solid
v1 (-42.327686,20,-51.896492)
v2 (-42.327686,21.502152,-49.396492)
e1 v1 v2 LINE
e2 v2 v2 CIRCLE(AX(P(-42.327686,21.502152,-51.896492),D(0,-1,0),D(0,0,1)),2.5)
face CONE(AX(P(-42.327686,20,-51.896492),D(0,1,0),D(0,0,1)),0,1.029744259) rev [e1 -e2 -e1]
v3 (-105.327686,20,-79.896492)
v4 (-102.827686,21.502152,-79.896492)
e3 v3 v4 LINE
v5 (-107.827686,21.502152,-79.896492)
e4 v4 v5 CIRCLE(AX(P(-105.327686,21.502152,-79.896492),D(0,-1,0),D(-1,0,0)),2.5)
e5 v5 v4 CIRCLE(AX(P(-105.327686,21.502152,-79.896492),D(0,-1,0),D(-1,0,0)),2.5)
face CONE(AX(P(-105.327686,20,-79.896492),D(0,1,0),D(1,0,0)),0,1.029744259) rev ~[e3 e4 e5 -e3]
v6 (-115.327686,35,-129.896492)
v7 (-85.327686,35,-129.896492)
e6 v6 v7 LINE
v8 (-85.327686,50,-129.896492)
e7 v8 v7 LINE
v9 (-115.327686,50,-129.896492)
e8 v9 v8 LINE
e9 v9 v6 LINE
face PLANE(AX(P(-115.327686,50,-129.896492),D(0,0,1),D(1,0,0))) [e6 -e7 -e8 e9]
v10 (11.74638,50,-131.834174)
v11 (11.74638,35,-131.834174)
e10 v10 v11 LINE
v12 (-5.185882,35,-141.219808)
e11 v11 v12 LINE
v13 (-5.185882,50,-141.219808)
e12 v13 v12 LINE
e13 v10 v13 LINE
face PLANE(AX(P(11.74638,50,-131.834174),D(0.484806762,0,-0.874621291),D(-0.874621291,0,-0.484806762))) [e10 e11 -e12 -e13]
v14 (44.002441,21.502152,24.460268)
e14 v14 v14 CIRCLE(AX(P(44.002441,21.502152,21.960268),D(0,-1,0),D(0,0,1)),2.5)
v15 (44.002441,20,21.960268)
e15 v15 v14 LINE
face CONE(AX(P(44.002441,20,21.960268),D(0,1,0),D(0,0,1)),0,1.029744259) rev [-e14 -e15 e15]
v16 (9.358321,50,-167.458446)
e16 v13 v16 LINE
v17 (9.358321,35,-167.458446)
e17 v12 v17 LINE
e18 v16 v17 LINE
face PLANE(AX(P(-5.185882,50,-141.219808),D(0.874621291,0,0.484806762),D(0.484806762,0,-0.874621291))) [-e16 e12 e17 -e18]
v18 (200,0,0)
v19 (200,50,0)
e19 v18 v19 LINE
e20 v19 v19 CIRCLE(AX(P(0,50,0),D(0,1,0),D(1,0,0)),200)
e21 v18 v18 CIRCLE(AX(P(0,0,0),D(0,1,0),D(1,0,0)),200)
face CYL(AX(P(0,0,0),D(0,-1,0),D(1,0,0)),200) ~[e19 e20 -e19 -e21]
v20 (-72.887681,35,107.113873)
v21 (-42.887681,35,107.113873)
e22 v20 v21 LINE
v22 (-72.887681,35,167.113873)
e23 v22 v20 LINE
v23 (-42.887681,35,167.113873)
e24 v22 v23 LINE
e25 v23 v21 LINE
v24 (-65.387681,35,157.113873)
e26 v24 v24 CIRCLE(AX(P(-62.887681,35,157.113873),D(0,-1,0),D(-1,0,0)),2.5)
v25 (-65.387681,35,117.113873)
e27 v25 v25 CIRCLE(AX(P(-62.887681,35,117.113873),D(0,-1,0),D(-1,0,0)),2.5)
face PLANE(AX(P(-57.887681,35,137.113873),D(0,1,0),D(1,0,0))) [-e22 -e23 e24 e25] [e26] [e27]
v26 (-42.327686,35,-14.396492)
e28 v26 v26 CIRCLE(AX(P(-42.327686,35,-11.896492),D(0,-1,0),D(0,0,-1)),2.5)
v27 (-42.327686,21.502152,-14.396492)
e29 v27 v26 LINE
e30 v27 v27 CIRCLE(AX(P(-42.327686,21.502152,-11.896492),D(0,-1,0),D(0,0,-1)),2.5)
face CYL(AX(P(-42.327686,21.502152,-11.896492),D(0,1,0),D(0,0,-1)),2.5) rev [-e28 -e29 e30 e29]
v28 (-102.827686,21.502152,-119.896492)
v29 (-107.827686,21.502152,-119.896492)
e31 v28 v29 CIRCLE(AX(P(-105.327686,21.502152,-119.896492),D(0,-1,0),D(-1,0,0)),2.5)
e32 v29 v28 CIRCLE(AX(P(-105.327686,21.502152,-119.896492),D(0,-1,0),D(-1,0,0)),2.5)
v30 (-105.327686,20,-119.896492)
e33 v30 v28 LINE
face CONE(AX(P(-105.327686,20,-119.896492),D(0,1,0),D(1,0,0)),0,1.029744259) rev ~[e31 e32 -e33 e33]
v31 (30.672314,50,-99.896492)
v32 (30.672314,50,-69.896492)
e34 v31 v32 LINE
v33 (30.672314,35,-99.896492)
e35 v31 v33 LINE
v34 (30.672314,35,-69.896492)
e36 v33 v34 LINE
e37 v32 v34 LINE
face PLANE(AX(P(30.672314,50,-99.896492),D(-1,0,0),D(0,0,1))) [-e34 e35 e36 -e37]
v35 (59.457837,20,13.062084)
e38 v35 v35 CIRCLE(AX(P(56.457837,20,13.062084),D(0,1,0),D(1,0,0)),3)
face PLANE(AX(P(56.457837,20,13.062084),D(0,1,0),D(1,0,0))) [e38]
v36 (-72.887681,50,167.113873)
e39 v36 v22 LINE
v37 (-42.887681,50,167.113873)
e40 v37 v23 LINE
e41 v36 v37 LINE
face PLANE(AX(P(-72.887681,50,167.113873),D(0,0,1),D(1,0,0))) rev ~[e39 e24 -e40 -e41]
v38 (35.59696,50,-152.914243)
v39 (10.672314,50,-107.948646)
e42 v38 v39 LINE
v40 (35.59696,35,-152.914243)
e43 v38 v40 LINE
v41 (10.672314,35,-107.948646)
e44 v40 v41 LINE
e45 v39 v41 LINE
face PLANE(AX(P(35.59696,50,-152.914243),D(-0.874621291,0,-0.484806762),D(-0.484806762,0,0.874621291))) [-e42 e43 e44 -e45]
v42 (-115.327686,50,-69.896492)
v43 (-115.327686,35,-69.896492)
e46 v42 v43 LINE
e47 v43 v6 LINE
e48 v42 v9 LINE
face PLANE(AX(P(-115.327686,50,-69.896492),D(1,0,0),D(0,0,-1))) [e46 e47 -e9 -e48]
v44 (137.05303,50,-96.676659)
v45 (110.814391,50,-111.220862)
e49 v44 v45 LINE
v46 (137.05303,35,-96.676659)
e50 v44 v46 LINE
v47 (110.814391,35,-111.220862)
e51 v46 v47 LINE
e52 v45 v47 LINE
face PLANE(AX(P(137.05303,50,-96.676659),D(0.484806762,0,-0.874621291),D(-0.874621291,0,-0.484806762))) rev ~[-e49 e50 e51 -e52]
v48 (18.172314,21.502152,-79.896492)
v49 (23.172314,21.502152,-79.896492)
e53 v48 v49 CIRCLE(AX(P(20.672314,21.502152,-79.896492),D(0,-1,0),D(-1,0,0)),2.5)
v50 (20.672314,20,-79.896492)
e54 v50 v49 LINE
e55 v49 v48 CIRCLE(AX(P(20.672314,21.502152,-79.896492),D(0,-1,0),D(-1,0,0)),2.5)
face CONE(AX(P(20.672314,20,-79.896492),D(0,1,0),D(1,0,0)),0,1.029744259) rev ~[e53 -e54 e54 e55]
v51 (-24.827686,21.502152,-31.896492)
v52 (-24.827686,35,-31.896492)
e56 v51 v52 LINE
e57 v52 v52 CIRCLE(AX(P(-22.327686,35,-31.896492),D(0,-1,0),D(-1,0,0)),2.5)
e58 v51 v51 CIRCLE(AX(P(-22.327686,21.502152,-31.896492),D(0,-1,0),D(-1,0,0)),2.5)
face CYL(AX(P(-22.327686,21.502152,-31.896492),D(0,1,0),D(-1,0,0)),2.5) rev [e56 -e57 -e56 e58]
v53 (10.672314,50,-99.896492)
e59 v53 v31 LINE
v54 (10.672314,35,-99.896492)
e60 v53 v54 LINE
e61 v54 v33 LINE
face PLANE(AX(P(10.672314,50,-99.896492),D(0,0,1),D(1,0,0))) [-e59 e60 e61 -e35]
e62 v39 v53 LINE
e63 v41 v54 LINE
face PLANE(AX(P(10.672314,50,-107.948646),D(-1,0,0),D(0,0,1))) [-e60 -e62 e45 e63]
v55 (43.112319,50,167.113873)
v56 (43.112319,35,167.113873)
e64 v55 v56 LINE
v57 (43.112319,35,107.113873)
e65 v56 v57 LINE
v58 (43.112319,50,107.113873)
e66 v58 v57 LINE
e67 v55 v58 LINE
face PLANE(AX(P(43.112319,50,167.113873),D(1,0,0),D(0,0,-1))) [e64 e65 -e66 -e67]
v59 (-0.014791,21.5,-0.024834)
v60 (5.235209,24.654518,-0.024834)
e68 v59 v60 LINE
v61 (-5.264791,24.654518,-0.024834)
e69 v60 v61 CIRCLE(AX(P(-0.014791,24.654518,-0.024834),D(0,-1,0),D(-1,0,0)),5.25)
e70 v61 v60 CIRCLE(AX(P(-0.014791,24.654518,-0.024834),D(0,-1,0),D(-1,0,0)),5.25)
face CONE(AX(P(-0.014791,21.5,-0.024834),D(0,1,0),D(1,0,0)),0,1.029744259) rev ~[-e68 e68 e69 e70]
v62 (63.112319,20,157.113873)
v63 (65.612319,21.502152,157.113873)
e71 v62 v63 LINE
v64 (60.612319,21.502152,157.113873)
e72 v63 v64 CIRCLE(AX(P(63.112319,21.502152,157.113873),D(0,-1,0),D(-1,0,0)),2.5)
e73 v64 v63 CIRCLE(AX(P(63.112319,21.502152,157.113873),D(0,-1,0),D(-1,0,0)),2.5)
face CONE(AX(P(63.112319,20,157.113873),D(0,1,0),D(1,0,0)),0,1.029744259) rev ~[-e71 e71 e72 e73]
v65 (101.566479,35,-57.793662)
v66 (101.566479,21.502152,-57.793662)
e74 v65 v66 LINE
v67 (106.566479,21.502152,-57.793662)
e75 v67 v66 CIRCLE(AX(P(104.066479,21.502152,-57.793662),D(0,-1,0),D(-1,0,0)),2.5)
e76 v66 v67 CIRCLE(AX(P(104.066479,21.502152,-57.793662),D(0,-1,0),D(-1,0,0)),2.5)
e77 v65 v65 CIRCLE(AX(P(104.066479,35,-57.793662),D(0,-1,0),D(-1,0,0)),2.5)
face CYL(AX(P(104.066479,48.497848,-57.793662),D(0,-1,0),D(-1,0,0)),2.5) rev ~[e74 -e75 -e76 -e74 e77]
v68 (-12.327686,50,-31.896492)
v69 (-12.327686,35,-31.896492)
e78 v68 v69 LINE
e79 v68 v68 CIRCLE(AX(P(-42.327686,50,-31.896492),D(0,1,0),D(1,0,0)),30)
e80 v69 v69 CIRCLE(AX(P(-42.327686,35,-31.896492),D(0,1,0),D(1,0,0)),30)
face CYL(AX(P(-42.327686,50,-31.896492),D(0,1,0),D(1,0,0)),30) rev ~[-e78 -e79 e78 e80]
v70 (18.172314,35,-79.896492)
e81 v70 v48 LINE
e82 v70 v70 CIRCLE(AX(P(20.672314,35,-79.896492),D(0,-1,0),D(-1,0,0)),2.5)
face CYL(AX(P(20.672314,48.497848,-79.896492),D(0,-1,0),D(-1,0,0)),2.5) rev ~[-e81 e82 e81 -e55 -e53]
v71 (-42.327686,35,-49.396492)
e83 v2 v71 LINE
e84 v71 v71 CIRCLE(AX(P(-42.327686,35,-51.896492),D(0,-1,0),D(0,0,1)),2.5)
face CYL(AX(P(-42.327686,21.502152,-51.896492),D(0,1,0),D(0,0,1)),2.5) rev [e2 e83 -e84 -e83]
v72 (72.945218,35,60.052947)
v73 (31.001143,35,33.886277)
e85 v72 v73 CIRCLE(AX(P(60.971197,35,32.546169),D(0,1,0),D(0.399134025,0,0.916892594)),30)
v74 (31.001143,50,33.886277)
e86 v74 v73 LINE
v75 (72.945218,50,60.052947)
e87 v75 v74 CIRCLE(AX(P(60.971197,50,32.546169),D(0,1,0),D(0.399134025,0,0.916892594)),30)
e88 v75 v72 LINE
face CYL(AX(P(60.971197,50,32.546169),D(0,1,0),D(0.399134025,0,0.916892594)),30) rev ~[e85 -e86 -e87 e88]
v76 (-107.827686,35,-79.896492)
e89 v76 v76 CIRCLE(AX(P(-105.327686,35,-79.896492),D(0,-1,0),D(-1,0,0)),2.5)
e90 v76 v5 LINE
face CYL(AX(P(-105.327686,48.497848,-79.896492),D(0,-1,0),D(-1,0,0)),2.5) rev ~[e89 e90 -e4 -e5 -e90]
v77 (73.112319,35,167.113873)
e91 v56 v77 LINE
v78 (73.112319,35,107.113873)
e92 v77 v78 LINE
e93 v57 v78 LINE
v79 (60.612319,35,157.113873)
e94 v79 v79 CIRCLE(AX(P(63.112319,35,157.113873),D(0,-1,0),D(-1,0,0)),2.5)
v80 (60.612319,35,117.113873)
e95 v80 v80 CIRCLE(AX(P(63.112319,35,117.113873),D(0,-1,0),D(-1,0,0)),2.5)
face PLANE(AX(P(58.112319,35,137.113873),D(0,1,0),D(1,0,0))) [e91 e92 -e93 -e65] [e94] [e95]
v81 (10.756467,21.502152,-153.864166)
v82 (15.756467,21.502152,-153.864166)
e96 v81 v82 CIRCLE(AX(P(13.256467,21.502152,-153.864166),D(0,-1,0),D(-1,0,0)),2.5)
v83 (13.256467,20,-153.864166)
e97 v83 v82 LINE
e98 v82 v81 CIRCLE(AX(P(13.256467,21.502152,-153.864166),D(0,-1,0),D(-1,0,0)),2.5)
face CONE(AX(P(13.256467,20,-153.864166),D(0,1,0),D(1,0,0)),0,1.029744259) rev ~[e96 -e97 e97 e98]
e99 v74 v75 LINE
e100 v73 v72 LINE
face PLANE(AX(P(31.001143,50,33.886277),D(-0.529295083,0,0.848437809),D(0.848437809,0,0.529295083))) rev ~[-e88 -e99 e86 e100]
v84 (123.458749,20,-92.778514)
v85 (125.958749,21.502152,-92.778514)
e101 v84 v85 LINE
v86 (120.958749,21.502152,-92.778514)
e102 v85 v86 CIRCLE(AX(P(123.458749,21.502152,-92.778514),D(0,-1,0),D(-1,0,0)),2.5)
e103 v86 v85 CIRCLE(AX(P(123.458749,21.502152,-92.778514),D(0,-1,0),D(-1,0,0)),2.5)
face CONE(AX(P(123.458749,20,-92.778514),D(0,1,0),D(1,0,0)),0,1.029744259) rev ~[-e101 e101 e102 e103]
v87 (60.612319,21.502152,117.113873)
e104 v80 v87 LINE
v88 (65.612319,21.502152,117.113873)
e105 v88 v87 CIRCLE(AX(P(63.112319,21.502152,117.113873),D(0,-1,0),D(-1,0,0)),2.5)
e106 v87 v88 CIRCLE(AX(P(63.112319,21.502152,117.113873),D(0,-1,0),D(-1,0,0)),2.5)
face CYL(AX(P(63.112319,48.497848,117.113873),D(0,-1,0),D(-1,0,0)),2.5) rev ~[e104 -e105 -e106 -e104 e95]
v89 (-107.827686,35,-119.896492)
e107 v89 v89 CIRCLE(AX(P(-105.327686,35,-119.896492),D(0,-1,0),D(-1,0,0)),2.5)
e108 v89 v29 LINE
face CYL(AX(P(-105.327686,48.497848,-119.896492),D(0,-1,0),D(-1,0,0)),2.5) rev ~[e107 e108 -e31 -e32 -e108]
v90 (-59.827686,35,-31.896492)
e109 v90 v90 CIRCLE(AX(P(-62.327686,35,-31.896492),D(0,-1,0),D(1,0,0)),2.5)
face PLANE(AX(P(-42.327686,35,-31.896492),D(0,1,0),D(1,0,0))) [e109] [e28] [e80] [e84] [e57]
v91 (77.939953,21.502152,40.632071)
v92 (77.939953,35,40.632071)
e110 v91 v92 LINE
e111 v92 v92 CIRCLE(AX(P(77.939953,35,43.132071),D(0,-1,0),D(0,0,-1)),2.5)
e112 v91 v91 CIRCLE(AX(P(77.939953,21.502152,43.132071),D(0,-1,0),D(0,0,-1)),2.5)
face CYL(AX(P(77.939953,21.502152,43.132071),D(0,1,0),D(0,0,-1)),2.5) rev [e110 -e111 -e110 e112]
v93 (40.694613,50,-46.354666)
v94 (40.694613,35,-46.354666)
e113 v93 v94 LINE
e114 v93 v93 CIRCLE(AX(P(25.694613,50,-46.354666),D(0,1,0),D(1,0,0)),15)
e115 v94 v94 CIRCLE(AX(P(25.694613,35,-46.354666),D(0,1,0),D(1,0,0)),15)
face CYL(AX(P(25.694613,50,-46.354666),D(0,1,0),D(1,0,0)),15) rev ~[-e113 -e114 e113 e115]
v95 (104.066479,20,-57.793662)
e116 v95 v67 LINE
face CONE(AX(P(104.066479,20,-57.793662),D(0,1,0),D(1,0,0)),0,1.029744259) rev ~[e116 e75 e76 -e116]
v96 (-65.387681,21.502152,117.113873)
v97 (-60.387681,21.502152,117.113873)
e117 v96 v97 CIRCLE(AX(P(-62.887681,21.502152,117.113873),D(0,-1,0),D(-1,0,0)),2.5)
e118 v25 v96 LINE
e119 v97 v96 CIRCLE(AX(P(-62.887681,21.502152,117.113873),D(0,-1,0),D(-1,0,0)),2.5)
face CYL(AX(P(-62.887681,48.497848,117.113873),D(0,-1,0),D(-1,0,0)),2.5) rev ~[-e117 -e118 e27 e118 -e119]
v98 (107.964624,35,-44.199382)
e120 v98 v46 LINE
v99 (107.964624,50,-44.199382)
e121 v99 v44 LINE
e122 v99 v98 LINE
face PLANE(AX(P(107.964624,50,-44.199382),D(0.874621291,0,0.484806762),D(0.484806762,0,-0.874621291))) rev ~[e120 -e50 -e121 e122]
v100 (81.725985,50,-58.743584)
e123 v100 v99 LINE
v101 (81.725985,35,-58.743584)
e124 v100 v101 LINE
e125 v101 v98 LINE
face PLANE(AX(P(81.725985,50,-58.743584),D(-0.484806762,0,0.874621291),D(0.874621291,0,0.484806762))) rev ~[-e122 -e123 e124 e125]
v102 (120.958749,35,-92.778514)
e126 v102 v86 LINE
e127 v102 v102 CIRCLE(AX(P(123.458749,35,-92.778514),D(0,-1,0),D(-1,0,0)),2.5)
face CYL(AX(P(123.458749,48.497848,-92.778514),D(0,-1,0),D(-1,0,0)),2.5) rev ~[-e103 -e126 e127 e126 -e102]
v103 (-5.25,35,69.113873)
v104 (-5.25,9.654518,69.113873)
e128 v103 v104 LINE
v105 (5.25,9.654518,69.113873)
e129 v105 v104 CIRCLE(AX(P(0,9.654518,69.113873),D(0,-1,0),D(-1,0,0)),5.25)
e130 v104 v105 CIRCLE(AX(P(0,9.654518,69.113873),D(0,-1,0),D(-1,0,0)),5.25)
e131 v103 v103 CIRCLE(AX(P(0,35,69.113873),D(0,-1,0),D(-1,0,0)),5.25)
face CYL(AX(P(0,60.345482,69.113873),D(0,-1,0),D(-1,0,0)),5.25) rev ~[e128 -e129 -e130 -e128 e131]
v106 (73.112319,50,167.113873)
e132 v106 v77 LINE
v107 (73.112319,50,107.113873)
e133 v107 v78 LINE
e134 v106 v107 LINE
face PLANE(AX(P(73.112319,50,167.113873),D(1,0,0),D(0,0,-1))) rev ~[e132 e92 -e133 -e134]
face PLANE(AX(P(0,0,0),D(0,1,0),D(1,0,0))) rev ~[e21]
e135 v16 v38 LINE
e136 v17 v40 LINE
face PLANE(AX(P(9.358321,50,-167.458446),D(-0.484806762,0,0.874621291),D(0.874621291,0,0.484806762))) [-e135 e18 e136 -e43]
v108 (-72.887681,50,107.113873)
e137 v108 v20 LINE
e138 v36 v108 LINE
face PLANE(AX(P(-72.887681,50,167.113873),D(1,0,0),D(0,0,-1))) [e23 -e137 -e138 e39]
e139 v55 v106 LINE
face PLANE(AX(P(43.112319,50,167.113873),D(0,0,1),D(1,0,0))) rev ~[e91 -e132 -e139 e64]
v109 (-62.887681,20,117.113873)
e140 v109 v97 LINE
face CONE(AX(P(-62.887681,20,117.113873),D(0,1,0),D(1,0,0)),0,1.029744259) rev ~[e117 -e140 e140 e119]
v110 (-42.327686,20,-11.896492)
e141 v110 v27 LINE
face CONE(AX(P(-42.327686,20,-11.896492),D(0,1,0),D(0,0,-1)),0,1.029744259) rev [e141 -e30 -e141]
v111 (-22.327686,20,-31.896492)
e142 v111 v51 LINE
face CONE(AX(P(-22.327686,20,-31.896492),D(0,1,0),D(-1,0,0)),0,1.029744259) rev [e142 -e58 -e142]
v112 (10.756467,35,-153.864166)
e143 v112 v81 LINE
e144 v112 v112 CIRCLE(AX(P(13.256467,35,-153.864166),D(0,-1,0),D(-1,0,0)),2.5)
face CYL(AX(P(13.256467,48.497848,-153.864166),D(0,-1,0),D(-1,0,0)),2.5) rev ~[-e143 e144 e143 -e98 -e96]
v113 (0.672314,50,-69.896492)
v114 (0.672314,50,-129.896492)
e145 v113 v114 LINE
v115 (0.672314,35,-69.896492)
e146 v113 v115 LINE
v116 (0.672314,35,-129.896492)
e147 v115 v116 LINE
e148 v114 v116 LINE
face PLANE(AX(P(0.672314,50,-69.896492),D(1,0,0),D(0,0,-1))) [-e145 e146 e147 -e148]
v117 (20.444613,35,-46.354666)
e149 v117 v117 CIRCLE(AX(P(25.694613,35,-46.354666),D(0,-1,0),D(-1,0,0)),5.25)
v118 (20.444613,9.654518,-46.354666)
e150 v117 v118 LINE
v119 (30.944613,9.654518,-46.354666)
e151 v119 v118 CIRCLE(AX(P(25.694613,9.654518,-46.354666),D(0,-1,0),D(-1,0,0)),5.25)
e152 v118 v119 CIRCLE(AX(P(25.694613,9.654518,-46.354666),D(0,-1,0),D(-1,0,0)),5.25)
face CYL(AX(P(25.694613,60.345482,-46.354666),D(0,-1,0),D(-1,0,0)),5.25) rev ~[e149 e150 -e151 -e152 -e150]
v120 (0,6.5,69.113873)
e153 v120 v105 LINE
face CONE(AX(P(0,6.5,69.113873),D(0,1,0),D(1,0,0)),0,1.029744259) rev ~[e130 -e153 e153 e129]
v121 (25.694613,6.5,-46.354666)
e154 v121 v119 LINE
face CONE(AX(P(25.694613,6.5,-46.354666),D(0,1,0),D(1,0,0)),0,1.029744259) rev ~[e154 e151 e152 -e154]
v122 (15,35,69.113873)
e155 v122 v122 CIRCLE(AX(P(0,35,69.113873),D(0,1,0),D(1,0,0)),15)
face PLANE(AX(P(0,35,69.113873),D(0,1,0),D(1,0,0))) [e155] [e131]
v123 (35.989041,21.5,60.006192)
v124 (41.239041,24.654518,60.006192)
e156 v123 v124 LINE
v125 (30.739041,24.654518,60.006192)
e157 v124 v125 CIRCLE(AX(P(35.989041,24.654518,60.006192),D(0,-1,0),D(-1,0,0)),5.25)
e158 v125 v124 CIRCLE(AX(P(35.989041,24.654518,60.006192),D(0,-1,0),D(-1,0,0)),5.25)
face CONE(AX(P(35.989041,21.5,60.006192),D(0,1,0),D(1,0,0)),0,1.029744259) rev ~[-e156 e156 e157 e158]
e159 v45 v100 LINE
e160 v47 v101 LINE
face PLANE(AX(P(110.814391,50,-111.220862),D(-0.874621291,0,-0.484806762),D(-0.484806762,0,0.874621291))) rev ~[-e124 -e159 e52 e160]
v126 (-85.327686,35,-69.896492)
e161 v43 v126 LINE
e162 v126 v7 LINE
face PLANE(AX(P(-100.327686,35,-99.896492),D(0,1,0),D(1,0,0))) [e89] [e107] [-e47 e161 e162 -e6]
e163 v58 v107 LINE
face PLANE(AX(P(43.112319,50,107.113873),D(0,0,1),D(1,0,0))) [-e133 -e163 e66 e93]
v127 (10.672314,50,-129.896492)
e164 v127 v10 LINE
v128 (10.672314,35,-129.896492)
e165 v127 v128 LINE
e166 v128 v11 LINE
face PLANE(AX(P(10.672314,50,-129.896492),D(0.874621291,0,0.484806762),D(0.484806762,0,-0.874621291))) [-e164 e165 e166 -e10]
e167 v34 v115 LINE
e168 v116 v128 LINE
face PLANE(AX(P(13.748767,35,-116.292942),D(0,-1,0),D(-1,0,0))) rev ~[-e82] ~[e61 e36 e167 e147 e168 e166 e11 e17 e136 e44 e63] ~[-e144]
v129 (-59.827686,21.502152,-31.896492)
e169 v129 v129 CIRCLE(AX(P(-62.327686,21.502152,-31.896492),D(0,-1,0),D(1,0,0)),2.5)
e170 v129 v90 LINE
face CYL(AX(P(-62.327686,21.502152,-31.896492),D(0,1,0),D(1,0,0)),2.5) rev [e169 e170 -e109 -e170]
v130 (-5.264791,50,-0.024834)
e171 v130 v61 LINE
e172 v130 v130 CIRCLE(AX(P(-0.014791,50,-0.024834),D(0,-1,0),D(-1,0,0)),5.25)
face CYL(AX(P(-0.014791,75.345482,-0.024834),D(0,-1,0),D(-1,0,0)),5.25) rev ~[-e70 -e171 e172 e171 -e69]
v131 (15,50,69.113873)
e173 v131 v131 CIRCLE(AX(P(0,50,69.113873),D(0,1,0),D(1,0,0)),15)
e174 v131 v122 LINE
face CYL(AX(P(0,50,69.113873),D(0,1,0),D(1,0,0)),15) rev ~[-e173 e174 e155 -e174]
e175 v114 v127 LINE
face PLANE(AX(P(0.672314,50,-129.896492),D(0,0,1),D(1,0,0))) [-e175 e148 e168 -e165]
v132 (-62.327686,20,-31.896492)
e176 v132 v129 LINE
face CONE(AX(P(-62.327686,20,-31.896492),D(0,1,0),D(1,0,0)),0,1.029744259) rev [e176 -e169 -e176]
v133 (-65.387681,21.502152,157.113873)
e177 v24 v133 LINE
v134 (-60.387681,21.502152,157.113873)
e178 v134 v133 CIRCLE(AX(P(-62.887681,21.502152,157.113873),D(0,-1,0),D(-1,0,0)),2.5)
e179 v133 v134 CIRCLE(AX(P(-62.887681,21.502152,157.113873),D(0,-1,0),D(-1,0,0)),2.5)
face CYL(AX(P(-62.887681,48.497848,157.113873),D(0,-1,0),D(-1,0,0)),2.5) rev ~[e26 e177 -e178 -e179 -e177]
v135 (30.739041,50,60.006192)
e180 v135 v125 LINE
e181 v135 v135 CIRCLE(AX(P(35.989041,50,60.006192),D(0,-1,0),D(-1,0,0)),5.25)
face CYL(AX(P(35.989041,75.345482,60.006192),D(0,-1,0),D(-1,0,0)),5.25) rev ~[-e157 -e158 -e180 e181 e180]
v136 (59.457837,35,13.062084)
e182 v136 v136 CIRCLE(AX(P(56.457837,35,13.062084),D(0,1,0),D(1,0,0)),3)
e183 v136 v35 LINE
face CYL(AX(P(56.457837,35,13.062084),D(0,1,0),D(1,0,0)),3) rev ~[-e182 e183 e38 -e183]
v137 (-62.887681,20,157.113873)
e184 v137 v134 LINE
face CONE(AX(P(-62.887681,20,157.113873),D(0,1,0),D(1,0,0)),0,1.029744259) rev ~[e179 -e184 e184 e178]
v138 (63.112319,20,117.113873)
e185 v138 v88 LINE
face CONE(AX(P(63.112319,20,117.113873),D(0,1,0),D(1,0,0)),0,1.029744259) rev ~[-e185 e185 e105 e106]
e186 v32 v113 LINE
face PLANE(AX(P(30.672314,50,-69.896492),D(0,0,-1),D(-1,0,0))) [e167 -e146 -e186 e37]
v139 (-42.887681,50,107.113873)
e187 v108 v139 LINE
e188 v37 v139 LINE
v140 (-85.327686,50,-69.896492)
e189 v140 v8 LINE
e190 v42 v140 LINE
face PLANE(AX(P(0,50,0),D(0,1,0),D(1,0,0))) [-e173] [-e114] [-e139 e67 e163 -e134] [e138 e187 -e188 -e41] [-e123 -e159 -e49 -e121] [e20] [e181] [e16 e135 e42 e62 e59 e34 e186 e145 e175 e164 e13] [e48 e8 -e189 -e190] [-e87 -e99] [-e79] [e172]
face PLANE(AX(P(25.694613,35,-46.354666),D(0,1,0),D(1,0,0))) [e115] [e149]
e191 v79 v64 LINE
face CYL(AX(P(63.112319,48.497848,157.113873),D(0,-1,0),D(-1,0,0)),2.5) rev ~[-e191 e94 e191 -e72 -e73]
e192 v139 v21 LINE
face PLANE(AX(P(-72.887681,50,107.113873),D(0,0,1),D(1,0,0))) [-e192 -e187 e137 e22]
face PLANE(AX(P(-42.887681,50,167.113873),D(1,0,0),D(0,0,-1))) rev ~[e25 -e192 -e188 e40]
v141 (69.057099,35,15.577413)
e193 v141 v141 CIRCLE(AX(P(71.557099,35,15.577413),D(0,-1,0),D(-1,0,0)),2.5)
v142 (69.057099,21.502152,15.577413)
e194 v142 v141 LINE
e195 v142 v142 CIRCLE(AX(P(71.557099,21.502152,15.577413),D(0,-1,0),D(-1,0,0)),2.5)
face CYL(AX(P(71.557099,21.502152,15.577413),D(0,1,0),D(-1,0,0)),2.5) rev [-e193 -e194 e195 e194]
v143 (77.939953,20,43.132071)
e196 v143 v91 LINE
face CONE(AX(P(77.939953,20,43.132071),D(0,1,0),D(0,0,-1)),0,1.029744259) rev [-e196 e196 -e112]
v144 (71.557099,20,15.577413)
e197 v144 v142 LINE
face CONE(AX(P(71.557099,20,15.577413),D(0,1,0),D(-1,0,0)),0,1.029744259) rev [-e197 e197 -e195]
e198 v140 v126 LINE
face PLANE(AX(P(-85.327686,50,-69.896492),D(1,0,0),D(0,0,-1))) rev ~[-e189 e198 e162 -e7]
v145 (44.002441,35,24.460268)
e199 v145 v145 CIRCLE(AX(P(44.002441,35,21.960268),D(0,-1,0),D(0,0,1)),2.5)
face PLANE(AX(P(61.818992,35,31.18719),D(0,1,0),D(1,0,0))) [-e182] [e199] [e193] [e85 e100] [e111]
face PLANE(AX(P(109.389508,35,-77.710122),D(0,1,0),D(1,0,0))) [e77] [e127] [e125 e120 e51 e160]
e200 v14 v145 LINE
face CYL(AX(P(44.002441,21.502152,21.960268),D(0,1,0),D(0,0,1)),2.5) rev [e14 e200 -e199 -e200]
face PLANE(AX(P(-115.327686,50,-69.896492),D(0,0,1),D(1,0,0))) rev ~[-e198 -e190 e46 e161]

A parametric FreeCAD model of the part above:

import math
import FreeCAD as App
import Part
import Sketcher

V = App.Vector
Q = App.Units.Quantity

doc = App.newDocument("Part")
params = doc.addObject("Spreadsheet::Sheet", "Params")
for row, (alias, value) in enumerate([
    ("sketch1_diameter", "400 mm"),
    ("pad1_length", "50 mm"),
    ("sketch2_diameter", "30 mm"),
    ("sketch2_diameter2", "60 mm"),
    ("pocket1_length", "15 mm"),
    ("sketch3_diameter", "10.5 mm"),
    ("hole_diameter", "10.5 mm"),
    ("hole_depth", "25.345482 mm"),
    ("sketch4_width", "15 mm"),
    ("sketch4_height", "2.5 mm"),
    ("groove_angle", "360 deg"),
    ("sketch5_width", "15 mm"),
    ("sketch5_height", "2.5 mm"),
    ("groove2_angle", "360 deg"),
    ("sketch6_diameter", "10.5 mm"),
    ("hole2_diameter", "10.5 mm"),
    ("hole2_depth", "25.345482 mm"),
    ("sketch7_width", "30 mm"),
    ("sketch7_width2", "10 mm"),
    ("sketch7_height", "60 mm"),
    ("sketch7_length", "60 mm"),
    ("sketch7_length2", "30 mm"),
    ("pocket2_length", "15 mm"),
    ("sketch8_diameter", "5 mm"),
    ("hole3_diameter", "5 mm"),
    ("hole3_depth", "13.497848 mm"),
    ("sketch9_diameter", "6 mm"),
    ("pocket3_length", "15 mm"),
    ("sketch10_diameter", "10.5 mm"),
    ("hole4_diameter", "10.5 mm"),
    ("hole4_depth", "25.345482 mm"),
], start=1):
    params.set(f"A{row}", alias)
    params.set(f"B{row}", "=" + value)
    params.setAlias(f"B{row}", alias)

body = doc.addObject("PartDesign::Body", "Body")

sketch1 = body.newObject("Sketcher::SketchObject", "Sketch")
sketch1.AttachmentSupport = (doc.getObject("XZ_Plane"), [""])
sketch1.MapMode = "FlatFace"
sketch1.addGeometry(Part.Circle(V(0, 0, 0), V(0, 0, 1), 200), False)
sketch1.addConstraint([
    Sketcher.Constraint("Coincident", 0, 3, -1, 1),
    Sketcher.Constraint("Diameter", 0, 400.0),
])
sketch1.setExpression("Constraints[1]", "Params.sketch1_diameter")
pad1 = body.newObject("PartDesign::Pad", "Pad")
pad1.Profile = sketch1
pad1.setExpression("Length", "Params.pad1_length")
pad1.Reversed = True

sketch2 = body.newObject("Sketcher::SketchObject", "Sketch001")
sketch2.AttachmentSupport = (doc.getObject("XZ_Plane"), [""])
sketch2.MapMode = "FlatFace"
sketch2.AttachmentOffset = App.Placement(V(0, 0, -50), App.Rotation())
sketch2.addGeometry([
    Part.Circle(V(0, 69, 0), V(0, 0, 1), 15),
    Part.Circle(V(26, -46, 0), V(0, 0, 1), 15),
    Part.Circle(V(-42, -32, 0), V(0, 0, 1), 30),
    Part.LineSegment(V(31, 34, 0), V(73, 60, 0)),
    Part.ArcOfCircle(Part.Circle(V(61, 33, 0), V(0, 0, 1), 30), math.radians(177), math.radians(426)),
], False)
sketch2.addConstraint([
    Sketcher.Constraint("Coincident", 3, 1, 4, 1),
    Sketcher.Constraint("Coincident", 4, 2, 3, 2),
    Sketcher.Constraint("Equal", 0, 1),
    Sketcher.Constraint("Equal", 2, 4),
    Sketcher.Constraint("PointOnObject", 0, 3, -2),
    Sketcher.Constraint("Diameter", 0, 30.0),
    Sketcher.Constraint("Diameter", 2, 60.0),
    Sketcher.Constraint("DistanceX", 2, 3, 1, 3, 68.022299),
    Sketcher.Constraint("Distance", 3, 49.436828),
    Sketcher.Constraint("DistanceY", -1, 1, 4, 3, 32.546169),
    Sketcher.Constraint("DistanceY", 1, 3, 0, 3, 115.468539),
    Sketcher.Constraint("DistanceY", 2, 3, 4, 3, 64.442662),
    Sketcher.Constraint("DistanceX", 1, 3, 3, 1, 5.30653),
    Sketcher.Constraint("DistanceY", 2, 3, 3, 1, 65.782769),
    Sketcher.Constraint("DistanceY", -1, 1, 0, 3, 69.113873),
    Sketcher.Constraint("DistanceX", -1, 1, 1, 3, 25.694613),
])
sketch2.setExpression("Constraints[5]", "Params.sketch2_diameter")
sketch2.setExpression("Constraints[6]", "Params.sketch2_diameter2")
pocket1 = body.newObject("PartDesign::Pocket", "Pocket")
pocket1.Profile = sketch2
pocket1.setExpression("Length", "Params.pocket1_length")
pocket1.Reversed = True

sketch3 = body.newObject("Sketcher::SketchObject", "Sketch002")
sketch3.AttachmentSupport = (doc.getObject("XZ_Plane"), [""])
sketch3.MapMode = "FlatFace"
sketch3.AttachmentOffset = App.Placement(V(0, 0, -35), App.Rotation())
sketch3.addGeometry([
    Part.Circle(V(26, -46, 0), V(0, 0, 1), 5),
    Part.Circle(V(0, 69, 0), V(0, 0, 1), 5),
], False)
sketch3.addConstraint([
    Sketcher.Constraint("Equal", 0, 1),
    Sketcher.Constraint("PointOnObject", 1, 3, -2),
    Sketcher.Constraint("Diameter", 0, 10.5),
    Sketcher.Constraint("DistanceY", 0, 3, 1, 3, 115.468539),
    Sketcher.Constraint("DistanceX", -1, 1, 0, 3, 25.694613),
    Sketcher.Constraint("DistanceY", 0, 3, -1, 1, 46.354666),
])
sketch3.setExpression("Constraints[2]", "Params.sketch3_diameter")
doc.recompute()
hole = body.newObject("PartDesign::Hole", "Hole")
hole.Profile = sketch3
hole.ThreadType = "None"
hole.setExpression("Diameter", "Params.hole_diameter")
hole.DepthType = "Dimension"
hole.setExpression("Depth", "Params.hole_depth")
hole.DrillPoint = "Angled"
hole.DrillPointAngle = 118
hole.Reversed = True

sketch4 = body.newObject("Sketcher::SketchObject", "Sketch003")
sketch4.AttachmentSupport = (doc.getObject("YZ_Plane"), [""])
sketch4.MapMode = "FlatFace"
sketch4.AttachmentOffset = App.Placement(V(0, 0, 44.002441), App.Rotation())
sketch4.addGeometry([
    Part.LineSegment(V(20, 22, 0), V(35, 22, 0)),
    Part.LineSegment(V(35, 22, 0), V(35, 24.5, 0)),
    Part.LineSegment(V(35, 24.5, 0), V(21.5, 24.5, 0)),
    Part.LineSegment(V(21.5, 24.5, 0), V(20, 22, 0)),
], False)
sketch4.addGeometry(Part.LineSegment(V(35, 22, 0), V(20, 22, 0)), True)
sketch4.addConstraint([
    Sketcher.Constraint("Coincident", 0, 2, 1, 1),
    Sketcher.Constraint("Coincident", 1, 2, 2, 1),
    Sketcher.Constraint("Coincident", 2, 2, 3, 1),
    Sketcher.Constraint("Coincident", 3, 2, 0, 1),
    Sketcher.Constraint("Horizontal", 0),
    Sketcher.Constraint("Vertical", 1),
    Sketcher.Constraint("Horizontal", 2),
    Sketcher.Constraint("Horizontal", 4),
    Sketcher.Constraint("Coincident", 4, 1, 0, 2),
    Sketcher.Constraint("Equal", 0, 4),
    Sketcher.Constraint("DistanceX", 0, 1, 0, 2, 15.0),
    Sketcher.Constraint("Angle", 3, Q("-121 deg")),
    Sketcher.Constraint("DistanceY", 1, 1, 1, 2, 2.5),
    Sketcher.Constraint("DistanceX", -1, 1, 0, 2, 35.0),
    Sketcher.Constraint("DistanceY", -1, 1, 0, 2, 21.960268),
])
sketch4.setExpression("Constraints[10]", "Params.sketch4_width")
sketch4.setExpression("Constraints[12]", "Params.sketch4_height")
groove = body.newObject("PartDesign::Groove", "Groove")
groove.Profile = sketch4
groove.ReferenceAxis = (sketch4, ["Axis0"])
groove.setExpression("Angle", "Params.groove_angle")
doc.recompute()

datumline = body.newObject("PartDesign::Line", "DatumLine")
datumline.Placement = App.Placement(V(60.971197, 0, 32.546169), App.Rotation(V(0, 0, 1), V(0, -1, 0)))
polarpattern = body.newObject("PartDesign::PolarPattern", "PolarPattern")
polarpattern.Originals = [groove]
polarpattern.Axis = (datumline, [""])
polarpattern.Angle = 180
polarpattern.Occurrences = 3
body.Tip = polarpattern

sketch5 = body.newObject("Sketcher::SketchObject", "Sketch004")
sketch5.AttachmentSupport = (doc.getObject("YZ_Plane"), [""])
sketch5.MapMode = "FlatFace"
sketch5.AttachmentOffset = App.Placement(V(0, 0, -42.327686), App.Rotation())
sketch5.addGeometry([
    Part.LineSegment(V(20, -51.9, 0), V(35, -51.9, 0)),
    Part.LineSegment(V(35, -51.9, 0), V(35, -49.4, 0)),
    Part.LineSegment(V(35, -49.4, 0), V(21.5, -49.4, 0)),
    Part.LineSegment(V(21.5, -49.4, 0), V(20, -51.9, 0)),
], False)
sketch5.addGeometry(Part.LineSegment(V(35, -51.9, 0), V(20, -51.9, 0)), True)
sketch5.addConstraint([
    Sketcher.Constraint("Coincident", 0, 2, 1, 1),
    Sketcher.Constraint("Coincident", 1, 2, 2, 1),
    Sketcher.Constraint("Coincident", 2, 2, 3, 1),
    Sketcher.Constraint("Coincident", 3, 2, 0, 1),
    Sketcher.Constraint("Horizontal", 0),
    Sketcher.Constraint("Vertical", 1),
    Sketcher.Constraint("Horizontal", 2),
    Sketcher.Constraint("Horizontal", 4),
    Sketcher.Constraint("Coincident", 4, 1, 0, 2),
    Sketcher.Constraint("Equal", 0, 4),
    Sketcher.Constraint("DistanceX", 0, 1, 0, 2, 15.0),
    Sketcher.Constraint("Angle", 3, Q("-121 deg")),
    Sketcher.Constraint("DistanceY", 1, 1, 1, 2, 2.5),
    Sketcher.Constraint("DistanceX", -1, 1, 0, 2, 35.0),
    Sketcher.Constraint("DistanceY", 0, 2, -1, 1, 51.896492),
])
sketch5.setExpression("Constraints[10]", "Params.sketch5_width")
sketch5.setExpression("Constraints[12]", "Params.sketch5_height")
groove2 = body.newObject("PartDesign::Groove", "Groove001")
groove2.Profile = sketch5
groove2.ReferenceAxis = (sketch5, ["Axis0"])
groove2.setExpression("Angle", "Params.groove2_angle")
doc.recompute()

datumline2 = body.newObject("PartDesign::Line", "DatumLine001")
datumline2.Placement = App.Placement(V(-42.327686, 0, -31.896492), App.Rotation(V(0, 0, 1), V(0, 1, 0)))
polarpattern2 = body.newObject("PartDesign::PolarPattern", "PolarPattern001")
polarpattern2.Originals = [groove2]
polarpattern2.Axis = (datumline2, [""])
polarpattern2.Angle = 360
polarpattern2.Occurrences = 4
body.Tip = polarpattern2

sketch6 = body.newObject("Sketcher::SketchObject", "Sketch005")
sketch6.AttachmentSupport = (doc.getObject("XZ_Plane"), [""])
sketch6.MapMode = "FlatFace"
sketch6.AttachmentOffset = App.Placement(V(0, 0, -50), App.Rotation())
sketch6.addGeometry(Part.Circle(V(0, 0, 0), V(0, 0, 1), 5), False)
sketch6.addConstraint([
    Sketcher.Constraint("Diameter", 0, 10.5),
    Sketcher.Constraint("DistanceX", 0, 3, -1, 1, 0.014791),
    Sketcher.Constraint("DistanceY", 0, 3, -1, 1, 0.024834),
])
sketch6.setExpression("Constraints[0]", "Params.sketch6_diameter")
doc.recompute()
hole2 = body.newObject("PartDesign::Hole", "Hole001")
hole2.Profile = sketch6
hole2.ThreadType = "None"
hole2.setExpression("Diameter", "Params.hole2_diameter")
hole2.DepthType = "Dimension"
hole2.setExpression("Depth", "Params.hole2_depth")
hole2.DrillPoint = "Angled"
hole2.DrillPointAngle = 118
hole2.Reversed = True

sketch7 = body.newObject("Sketcher::SketchObject", "Sketch006")
sketch7.AttachmentSupport = (doc.getObject("XZ_Plane"), [""])
sketch7.MapMode = "FlatFace"
sketch7.AttachmentOffset = App.Placement(V(0, 0, -50), App.Rotation())
sketch7.addGeometry([
    Part.LineSegment(V(43.1, 107.1, 0), V(43.1, 167.1, 0)),
    Part.LineSegment(V(43.1, 167.1, 0), V(73.1, 167.1, 0)),
    Part.LineSegment(V(73.1, 167.1, 0), V(73.1, 107.1, 0)),
    Part.LineSegment(V(73.1, 107.1, 0), V(43.1, 107.1, 0)),
    Part.LineSegment(V(110.8, -111.2, 0), V(81.7, -58.7, 0)),
    Part.LineSegment(V(81.7, -58.7, 0), V(108, -44.2, 0)),
    Part.LineSegment(V(108, -44.2, 0), V(137.1, -96.7, 0)),
    Part.LineSegment(V(137.1, -96.7, 0), V(110.8, -111.2, 0)),
    Part.LineSegment(V(-115.3, -129.9, 0), V(-115.3, -69.9, 0)),
    Part.LineSegment(V(-115.3, -69.9, 0), V(-85.3, -69.9, 0)),
    Part.LineSegment(V(-85.3, -69.9, 0), V(-85.3, -129.9, 0)),
    Part.LineSegment(V(-85.3, -129.9, 0), V(-115.3, -129.9, 0)),
    Part.LineSegment(V(-72.9, 107.1, 0), V(-72.9, 167.1, 0)),
    Part.LineSegment(V(-72.9, 167.1, 0), V(-42.9, 167.1, 0)),
    Part.LineSegment(V(-42.9, 167.1, 0), V(-42.9, 107.1, 0)),
    Part.LineSegment(V(-42.9, 107.1, 0), V(-72.9, 107.1, 0)),
    Part.LineSegment(V(35.6, -152.9, 0), V(9.4, -167.5, 0)),
    Part.LineSegment(V(9.4, -167.5, 0), V(-5.2, -141.2, 0)),
    Part.LineSegment(V(-5.2, -141.2, 0), V(11.7, -131.8, 0)),
    Part.LineSegment(V(11.7, -131.8, 0), V(10.7, -129.9, 0)),
    Part.LineSegment(V(10.7, -129.9, 0), V(0.7, -129.9, 0)),
    Part.LineSegment(V(0.7, -129.9, 0), V(0.7, -69.9, 0)),
    Part.LineSegment(V(0.7, -69.9, 0), V(30.7, -69.9, 0)),
    Part.LineSegment(V(30.7, -69.9, 0), V(30.7, -99.9, 0)),
    Part.LineSegment(V(30.7, -99.9, 0), V(10.7, -99.9, 0)),
    Part.LineSegment(V(10.7, -99.9, 0), V(10.7, -107.9, 0)),
    Part.LineSegment(V(10.7, -107.9, 0), V(35.6, -152.9, 0)),
], False)
sketch7.addConstraint([
    Sketcher.Constraint("Coincident", 0, 2, 1, 1),
    Sketcher.Constraint("Coincident", 1, 2, 2, 1),
    Sketcher.Constraint("Coincident", 2, 2, 3, 1),
    Sketcher.Constraint("Coincident", 3, 2, 0, 1),
    Sketcher.Constraint("Coincident", 4, 2, 5, 1),
    Sketcher.Constraint("Coincident", 5, 2, 6, 1),
    Sketcher.Constraint("Coincident", 6, 2, 7, 1),
    Sketcher.Constraint("Coincident", 7, 2, 4, 1),
    Sketcher.Constraint("Coincident", 8, 2, 9, 1),
    Sketcher.Constraint("Coincident", 9, 2, 10, 1),
    Sketcher.Constraint("Coincident", 10, 2, 11, 1),
    Sketcher.Constraint("Coincident", 11, 2, 8, 1),
    Sketcher.Constraint("Coincident", 12, 2, 13, 1),
    Sketcher.Constraint("Coincident", 13, 2, 14, 1),
    Sketcher.Constraint("Coincident", 14, 2, 15, 1),
    Sketcher.Constraint("Coincident", 15, 2, 12, 1),
    Sketcher.Constraint("Coincident", 16, 2, 17, 1),
    Sketcher.Constraint("Coincident", 17, 2, 18, 1),
    Sketcher.Constraint("Coincident", 18, 2, 19, 1),
    Sketcher.Constraint("Coincident", 19, 2, 20, 1),
    Sketcher.Constraint("Coincident", 20, 2, 21, 1),
    Sketcher.Constraint("Coincident", 21, 2, 22, 1),
    Sketcher.Constraint("Coincident", 22, 2, 23, 1),
    Sketcher.Constraint("Coincident", 23, 2, 24, 1),
    Sketcher.Constraint("Coincident", 24, 2, 25, 1),
    Sketcher.Constraint("Coincident", 25, 2, 26, 1),
    Sketcher.Constraint("Coincident", 26, 2, 16, 1),
    Sketcher.Constraint("Vertical", 0),
    Sketcher.Constraint("Horizontal", 1),
    Sketcher.Constraint("Vertical", 2),
    Sketcher.Constraint("Horizontal", 3),
    Sketcher.Constraint("Vertical", 8),
    Sketcher.Constraint("Horizontal", 9),
    Sketcher.Constraint("Vertical", 10),
    Sketcher.Constraint("Horizontal", 11),
    Sketcher.Constraint("Vertical", 12),
    Sketcher.Constraint("Horizontal", 13),
    Sketcher.Constraint("Vertical", 14),
    Sketcher.Constraint("Horizontal", 15),
    Sketcher.Constraint("Horizontal", 20),
    Sketcher.Constraint("Vertical", 21),
    Sketcher.Constraint("Horizontal", 22),
    Sketcher.Constraint("Vertical", 23),
    Sketcher.Constraint("Horizontal", 24),
    Sketcher.Constraint("Vertical", 25),
    Sketcher.Constraint("Perpendicular", 4, 5),
    Sketcher.Constraint("Perpendicular", 5, 6),
    Sketcher.Constraint("Perpendicular", 6, 7),
    Sketcher.Constraint("Parallel", 7, 16),
    Sketcher.Constraint("Perpendicular", 16, 17),
    Sketcher.Constraint("Perpendicular", 17, 18),
    Sketcher.Constraint("Perpendicular", 18, 19),
    Sketcher.Constraint("Parallel", 19, 26),
    Sketcher.Constraint("Horizontal", 1, 2, 12, 2),
    Sketcher.Constraint("Horizontal", 3, 2, 14, 2),
    Sketcher.Constraint("Horizontal", 11, 2, 19, 2),
    Sketcher.Constraint("Horizontal", 9, 2, 21, 2),
    Sketcher.Constraint("Vertical", 19, 2, 24, 2),
    Sketcher.Constraint("Equal", 3, 9),
    Sketcher.Constraint("Equal", 11, 13),
    Sketcher.Constraint("Equal", 15, 22),
    Sketcher.Constraint("Equal", 2, 8),
    Sketcher.Constraint("Equal", 22, 23),
    Sketcher.Constraint("Equal", 7, 16),
    Sketcher.Constraint("Equal", 16, 17),
    Sketcher.Constraint("DistanceX", 1, 1, 1, 2, 30.0),
    Sketcher.Constraint("DistanceX", 20, 2, 20, 1, 10.0),
    Sketcher.Constraint("DistanceY", 0, 1, 0, 2, 60.0),
    Sketcher.Constraint("Distance", 4, 60.0),
    Sketcher.Constraint("Distance", 5, 30.0),
    Sketcher.Constraint("DistanceX", 12, 2, 0, 2, 116.0),
    Sketcher.Constraint("DistanceX", 10, 2, 19, 2, 96.0),
    Sketcher.Constraint("Distance", 19, 2.215452),
    Sketcher.Constraint("DistanceY", 25, 2, 25, 1, 8.052153),
    Sketcher.Constraint("DistanceX", -1, 1, 0, 2, 43.112319),
    Sketcher.Constraint("DistanceY", 5, 2, -1, 1, 44.199382),
    Sketcher.Constraint("DistanceX", -1, 1, 6, 2, 137.05303),
    Sketcher.Constraint("DistanceY", 6, 2, -1, 1, 96.676659),
    Sketcher.Constraint("DistanceX", -1, 1, 16, 2, 9.358321),
    Sketcher.Constraint("DistanceY", 6, 2, 2, 2, 203.790532),
    Sketcher.Constraint("DistanceY", 8, 2, 4, 2, 11.152908),
])
sketch7.setExpression("Constraints[65]", "Params.sketch7_width")
sketch7.setExpression("Constraints[66]", "Params.sketch7_width2")
sketch7.setExpression("Constraints[67]", "Params.sketch7_height")
sketch7.setExpression("Constraints[68]", "Params.sketch7_length")
sketch7.setExpression("Constraints[69]", "Params.sketch7_length2")
pocket2 = body.newObject("PartDesign::Pocket", "Pocket001")
pocket2.Profile = sketch7
pocket2.setExpression("Length", "Params.pocket2_length")
pocket2.Reversed = True

sketch8 = body.newObject("Sketcher::SketchObject", "Sketch007")
sketch8.AttachmentSupport = (doc.getObject("XZ_Plane"), [""])
sketch8.MapMode = "FlatFace"
sketch8.AttachmentOffset = App.Placement(V(0, 0, -35), App.Rotation())
sketch8.addGeometry([
    Part.Circle(V(123.5, -92.8, 0), V(0, 0, 1), 2.5),
    Part.Circle(V(104.1, -57.8, 0), V(0, 0, 1), 2.5),
    Part.Circle(V(-105.3, -119.9, 0), V(0, 0, 1), 2.5),
    Part.Circle(V(-105.3, -79.9, 0), V(0, 0, 1), 2.5),
    Part.Circle(V(-62.9, 117.1, 0), V(0, 0, 1), 2.5),
    Part.Circle(V(-62.9, 157.1, 0), V(0, 0, 1), 2.5),
    Part.Circle(V(63.1, 117.1, 0), V(0, 0, 1), 2.5),
    Part.Circle(V(63.1, 157.1, 0), V(0, 0, 1), 2.5),
    Part.Circle(V(13.3, -153.9, 0), V(0, 0, 1), 2.5),
    Part.Circle(V(20.7, -79.9, 0), V(0, 0, 1), 2.5),
], False)
sketch8.addConstraint([
    Sketcher.Constraint("Equal", 0, 1),
    Sketcher.Constraint("Equal", 1, 2),
    Sketcher.Constraint("Equal", 2, 3),
    Sketcher.Constraint("Equal", 3, 4),
    Sketcher.Constraint("Equal", 4, 5),
    Sketcher.Constraint("Equal", 5, 6),
    Sketcher.Constraint("Equal", 6, 7),
    Sketcher.Constraint("Equal", 7, 8),
    Sketcher.Constraint("Equal", 8, 9),
    Sketcher.Constraint("Horizontal", 4, 3, 6, 3),
    Sketcher.Constraint("Horizontal", 5, 3, 7, 3),
    Sketcher.Constraint("Horizontal", 3, 3, 9, 3),
    Sketcher.Constraint("Vertical", 2, 3, 3, 3),
    Sketcher.Constraint("Vertical", 4, 3, 5, 3),
    Sketcher.Constraint("Vertical", 6, 3, 7, 3),
    Sketcher.Constraint("Diameter", 0, 5.0),
    Sketcher.Constraint("DistanceY", 2, 3, 3, 3, 40.0),
    Sketcher.Constraint("DistanceY", 4, 3, 5, 3, 40.0),
    Sketcher.Constraint("DistanceX", 4, 3, 6, 3, 126.0),
    Sketcher.Constraint("DistanceX", 3, 3, 9, 3, 126.0),
    Sketcher.Constraint("DistanceX", -1, 1, 0, 3, 123.458749),
    Sketcher.Constraint("DistanceX", -1, 1, 1, 3, 104.066479),
    Sketcher.Constraint("DistanceX", 4, 3, -1, 1, 62.887681),
    Sketcher.Constraint("DistanceY", 0, 3, 1, 3, 34.984852),
    Sketcher.Constraint("DistanceY", 2, 3, 1, 3, 62.10283),
    Sketcher.Constraint("DistanceY", 8, 3, 6, 3, 270.978038),
    Sketcher.Constraint("DistanceY", 0, 3, -1, 1, 92.778514),
    Sketcher.Constraint("DistanceX", 2, 3, -1, 1, 105.327686),
    Sketcher.Constraint("DistanceY", -1, 1, 4, 3, 117.113873),
    Sketcher.Constraint("DistanceX", -1, 1, 8, 3, 13.256467),
])
sketch8.setExpression("Constraints[15]", "Params.sketch8_diameter")
doc.recompute()
hole3 = body.newObject("PartDesign::Hole", "Hole002")
hole3.Profile = sketch8
hole3.ThreadType = "None"
hole3.setExpression("Diameter", "Params.hole3_diameter")
hole3.DepthType = "Dimension"
hole3.setExpression("Depth", "Params.hole3_depth")
hole3.DrillPoint = "Angled"
hole3.DrillPointAngle = 118
hole3.Reversed = True

sketch9 = body.newObject("Sketcher::SketchObject", "Sketch008")
sketch9.AttachmentSupport = (doc.getObject("XZ_Plane"), [""])
sketch9.MapMode = "FlatFace"
sketch9.AttachmentOffset = App.Placement(V(0, 0, -35), App.Rotation())
sketch9.addGeometry(Part.Circle(V(56.5, 13.1, 0), V(0, 0, 1), 3), False)
sketch9.addConstraint([
    Sketcher.Constraint("Diameter", 0, 6.0),
    Sketcher.Constraint("DistanceX", -1, 1, 0, 3, 56.457837),
    Sketcher.Constraint("DistanceY", -1, 1, 0, 3, 13.062084),
])
sketch9.setExpression("Constraints[0]", "Params.sketch9_diameter")
pocket3 = body.newObject("PartDesign::Pocket", "Pocket002")
pocket3.Profile = sketch9
pocket3.setExpression("Length", "Params.pocket3_length")
pocket3.Reversed = True

sketch10 = body.newObject("Sketcher::SketchObject", "Sketch009")
sketch10.AttachmentSupport = (doc.getObject("XZ_Plane"), [""])
sketch10.MapMode = "FlatFace"
sketch10.AttachmentOffset = App.Placement(V(0, 0, -50), App.Rotation())
sketch10.addGeometry(Part.Circle(V(36, 60, 0), V(0, 0, 1), 5), False)
sketch10.addConstraint([
    Sketcher.Constraint("Diameter", 0, 10.5),
    Sketcher.Constraint("DistanceX", -1, 1, 0, 3, 35.989041),
    Sketcher.Constraint("DistanceY", -1, 1, 0, 3, 60.006192),
])
sketch10.setExpression("Constraints[0]", "Params.sketch10_diameter")
doc.recompute()
hole4 = body.newObject("PartDesign::Hole", "Hole003")
hole4.Profile = sketch10
hole4.ThreadType = "None"
hole4.setExpression("Diameter", "Params.hole4_diameter")
hole4.DepthType = "Dimension"
hole4.setExpression("Depth", "Params.hole4_depth")
hole4.DrillPoint = "Angled"
hole4.DrillPointAngle = 118
hole4.Reversed = True

doc.recompute()
